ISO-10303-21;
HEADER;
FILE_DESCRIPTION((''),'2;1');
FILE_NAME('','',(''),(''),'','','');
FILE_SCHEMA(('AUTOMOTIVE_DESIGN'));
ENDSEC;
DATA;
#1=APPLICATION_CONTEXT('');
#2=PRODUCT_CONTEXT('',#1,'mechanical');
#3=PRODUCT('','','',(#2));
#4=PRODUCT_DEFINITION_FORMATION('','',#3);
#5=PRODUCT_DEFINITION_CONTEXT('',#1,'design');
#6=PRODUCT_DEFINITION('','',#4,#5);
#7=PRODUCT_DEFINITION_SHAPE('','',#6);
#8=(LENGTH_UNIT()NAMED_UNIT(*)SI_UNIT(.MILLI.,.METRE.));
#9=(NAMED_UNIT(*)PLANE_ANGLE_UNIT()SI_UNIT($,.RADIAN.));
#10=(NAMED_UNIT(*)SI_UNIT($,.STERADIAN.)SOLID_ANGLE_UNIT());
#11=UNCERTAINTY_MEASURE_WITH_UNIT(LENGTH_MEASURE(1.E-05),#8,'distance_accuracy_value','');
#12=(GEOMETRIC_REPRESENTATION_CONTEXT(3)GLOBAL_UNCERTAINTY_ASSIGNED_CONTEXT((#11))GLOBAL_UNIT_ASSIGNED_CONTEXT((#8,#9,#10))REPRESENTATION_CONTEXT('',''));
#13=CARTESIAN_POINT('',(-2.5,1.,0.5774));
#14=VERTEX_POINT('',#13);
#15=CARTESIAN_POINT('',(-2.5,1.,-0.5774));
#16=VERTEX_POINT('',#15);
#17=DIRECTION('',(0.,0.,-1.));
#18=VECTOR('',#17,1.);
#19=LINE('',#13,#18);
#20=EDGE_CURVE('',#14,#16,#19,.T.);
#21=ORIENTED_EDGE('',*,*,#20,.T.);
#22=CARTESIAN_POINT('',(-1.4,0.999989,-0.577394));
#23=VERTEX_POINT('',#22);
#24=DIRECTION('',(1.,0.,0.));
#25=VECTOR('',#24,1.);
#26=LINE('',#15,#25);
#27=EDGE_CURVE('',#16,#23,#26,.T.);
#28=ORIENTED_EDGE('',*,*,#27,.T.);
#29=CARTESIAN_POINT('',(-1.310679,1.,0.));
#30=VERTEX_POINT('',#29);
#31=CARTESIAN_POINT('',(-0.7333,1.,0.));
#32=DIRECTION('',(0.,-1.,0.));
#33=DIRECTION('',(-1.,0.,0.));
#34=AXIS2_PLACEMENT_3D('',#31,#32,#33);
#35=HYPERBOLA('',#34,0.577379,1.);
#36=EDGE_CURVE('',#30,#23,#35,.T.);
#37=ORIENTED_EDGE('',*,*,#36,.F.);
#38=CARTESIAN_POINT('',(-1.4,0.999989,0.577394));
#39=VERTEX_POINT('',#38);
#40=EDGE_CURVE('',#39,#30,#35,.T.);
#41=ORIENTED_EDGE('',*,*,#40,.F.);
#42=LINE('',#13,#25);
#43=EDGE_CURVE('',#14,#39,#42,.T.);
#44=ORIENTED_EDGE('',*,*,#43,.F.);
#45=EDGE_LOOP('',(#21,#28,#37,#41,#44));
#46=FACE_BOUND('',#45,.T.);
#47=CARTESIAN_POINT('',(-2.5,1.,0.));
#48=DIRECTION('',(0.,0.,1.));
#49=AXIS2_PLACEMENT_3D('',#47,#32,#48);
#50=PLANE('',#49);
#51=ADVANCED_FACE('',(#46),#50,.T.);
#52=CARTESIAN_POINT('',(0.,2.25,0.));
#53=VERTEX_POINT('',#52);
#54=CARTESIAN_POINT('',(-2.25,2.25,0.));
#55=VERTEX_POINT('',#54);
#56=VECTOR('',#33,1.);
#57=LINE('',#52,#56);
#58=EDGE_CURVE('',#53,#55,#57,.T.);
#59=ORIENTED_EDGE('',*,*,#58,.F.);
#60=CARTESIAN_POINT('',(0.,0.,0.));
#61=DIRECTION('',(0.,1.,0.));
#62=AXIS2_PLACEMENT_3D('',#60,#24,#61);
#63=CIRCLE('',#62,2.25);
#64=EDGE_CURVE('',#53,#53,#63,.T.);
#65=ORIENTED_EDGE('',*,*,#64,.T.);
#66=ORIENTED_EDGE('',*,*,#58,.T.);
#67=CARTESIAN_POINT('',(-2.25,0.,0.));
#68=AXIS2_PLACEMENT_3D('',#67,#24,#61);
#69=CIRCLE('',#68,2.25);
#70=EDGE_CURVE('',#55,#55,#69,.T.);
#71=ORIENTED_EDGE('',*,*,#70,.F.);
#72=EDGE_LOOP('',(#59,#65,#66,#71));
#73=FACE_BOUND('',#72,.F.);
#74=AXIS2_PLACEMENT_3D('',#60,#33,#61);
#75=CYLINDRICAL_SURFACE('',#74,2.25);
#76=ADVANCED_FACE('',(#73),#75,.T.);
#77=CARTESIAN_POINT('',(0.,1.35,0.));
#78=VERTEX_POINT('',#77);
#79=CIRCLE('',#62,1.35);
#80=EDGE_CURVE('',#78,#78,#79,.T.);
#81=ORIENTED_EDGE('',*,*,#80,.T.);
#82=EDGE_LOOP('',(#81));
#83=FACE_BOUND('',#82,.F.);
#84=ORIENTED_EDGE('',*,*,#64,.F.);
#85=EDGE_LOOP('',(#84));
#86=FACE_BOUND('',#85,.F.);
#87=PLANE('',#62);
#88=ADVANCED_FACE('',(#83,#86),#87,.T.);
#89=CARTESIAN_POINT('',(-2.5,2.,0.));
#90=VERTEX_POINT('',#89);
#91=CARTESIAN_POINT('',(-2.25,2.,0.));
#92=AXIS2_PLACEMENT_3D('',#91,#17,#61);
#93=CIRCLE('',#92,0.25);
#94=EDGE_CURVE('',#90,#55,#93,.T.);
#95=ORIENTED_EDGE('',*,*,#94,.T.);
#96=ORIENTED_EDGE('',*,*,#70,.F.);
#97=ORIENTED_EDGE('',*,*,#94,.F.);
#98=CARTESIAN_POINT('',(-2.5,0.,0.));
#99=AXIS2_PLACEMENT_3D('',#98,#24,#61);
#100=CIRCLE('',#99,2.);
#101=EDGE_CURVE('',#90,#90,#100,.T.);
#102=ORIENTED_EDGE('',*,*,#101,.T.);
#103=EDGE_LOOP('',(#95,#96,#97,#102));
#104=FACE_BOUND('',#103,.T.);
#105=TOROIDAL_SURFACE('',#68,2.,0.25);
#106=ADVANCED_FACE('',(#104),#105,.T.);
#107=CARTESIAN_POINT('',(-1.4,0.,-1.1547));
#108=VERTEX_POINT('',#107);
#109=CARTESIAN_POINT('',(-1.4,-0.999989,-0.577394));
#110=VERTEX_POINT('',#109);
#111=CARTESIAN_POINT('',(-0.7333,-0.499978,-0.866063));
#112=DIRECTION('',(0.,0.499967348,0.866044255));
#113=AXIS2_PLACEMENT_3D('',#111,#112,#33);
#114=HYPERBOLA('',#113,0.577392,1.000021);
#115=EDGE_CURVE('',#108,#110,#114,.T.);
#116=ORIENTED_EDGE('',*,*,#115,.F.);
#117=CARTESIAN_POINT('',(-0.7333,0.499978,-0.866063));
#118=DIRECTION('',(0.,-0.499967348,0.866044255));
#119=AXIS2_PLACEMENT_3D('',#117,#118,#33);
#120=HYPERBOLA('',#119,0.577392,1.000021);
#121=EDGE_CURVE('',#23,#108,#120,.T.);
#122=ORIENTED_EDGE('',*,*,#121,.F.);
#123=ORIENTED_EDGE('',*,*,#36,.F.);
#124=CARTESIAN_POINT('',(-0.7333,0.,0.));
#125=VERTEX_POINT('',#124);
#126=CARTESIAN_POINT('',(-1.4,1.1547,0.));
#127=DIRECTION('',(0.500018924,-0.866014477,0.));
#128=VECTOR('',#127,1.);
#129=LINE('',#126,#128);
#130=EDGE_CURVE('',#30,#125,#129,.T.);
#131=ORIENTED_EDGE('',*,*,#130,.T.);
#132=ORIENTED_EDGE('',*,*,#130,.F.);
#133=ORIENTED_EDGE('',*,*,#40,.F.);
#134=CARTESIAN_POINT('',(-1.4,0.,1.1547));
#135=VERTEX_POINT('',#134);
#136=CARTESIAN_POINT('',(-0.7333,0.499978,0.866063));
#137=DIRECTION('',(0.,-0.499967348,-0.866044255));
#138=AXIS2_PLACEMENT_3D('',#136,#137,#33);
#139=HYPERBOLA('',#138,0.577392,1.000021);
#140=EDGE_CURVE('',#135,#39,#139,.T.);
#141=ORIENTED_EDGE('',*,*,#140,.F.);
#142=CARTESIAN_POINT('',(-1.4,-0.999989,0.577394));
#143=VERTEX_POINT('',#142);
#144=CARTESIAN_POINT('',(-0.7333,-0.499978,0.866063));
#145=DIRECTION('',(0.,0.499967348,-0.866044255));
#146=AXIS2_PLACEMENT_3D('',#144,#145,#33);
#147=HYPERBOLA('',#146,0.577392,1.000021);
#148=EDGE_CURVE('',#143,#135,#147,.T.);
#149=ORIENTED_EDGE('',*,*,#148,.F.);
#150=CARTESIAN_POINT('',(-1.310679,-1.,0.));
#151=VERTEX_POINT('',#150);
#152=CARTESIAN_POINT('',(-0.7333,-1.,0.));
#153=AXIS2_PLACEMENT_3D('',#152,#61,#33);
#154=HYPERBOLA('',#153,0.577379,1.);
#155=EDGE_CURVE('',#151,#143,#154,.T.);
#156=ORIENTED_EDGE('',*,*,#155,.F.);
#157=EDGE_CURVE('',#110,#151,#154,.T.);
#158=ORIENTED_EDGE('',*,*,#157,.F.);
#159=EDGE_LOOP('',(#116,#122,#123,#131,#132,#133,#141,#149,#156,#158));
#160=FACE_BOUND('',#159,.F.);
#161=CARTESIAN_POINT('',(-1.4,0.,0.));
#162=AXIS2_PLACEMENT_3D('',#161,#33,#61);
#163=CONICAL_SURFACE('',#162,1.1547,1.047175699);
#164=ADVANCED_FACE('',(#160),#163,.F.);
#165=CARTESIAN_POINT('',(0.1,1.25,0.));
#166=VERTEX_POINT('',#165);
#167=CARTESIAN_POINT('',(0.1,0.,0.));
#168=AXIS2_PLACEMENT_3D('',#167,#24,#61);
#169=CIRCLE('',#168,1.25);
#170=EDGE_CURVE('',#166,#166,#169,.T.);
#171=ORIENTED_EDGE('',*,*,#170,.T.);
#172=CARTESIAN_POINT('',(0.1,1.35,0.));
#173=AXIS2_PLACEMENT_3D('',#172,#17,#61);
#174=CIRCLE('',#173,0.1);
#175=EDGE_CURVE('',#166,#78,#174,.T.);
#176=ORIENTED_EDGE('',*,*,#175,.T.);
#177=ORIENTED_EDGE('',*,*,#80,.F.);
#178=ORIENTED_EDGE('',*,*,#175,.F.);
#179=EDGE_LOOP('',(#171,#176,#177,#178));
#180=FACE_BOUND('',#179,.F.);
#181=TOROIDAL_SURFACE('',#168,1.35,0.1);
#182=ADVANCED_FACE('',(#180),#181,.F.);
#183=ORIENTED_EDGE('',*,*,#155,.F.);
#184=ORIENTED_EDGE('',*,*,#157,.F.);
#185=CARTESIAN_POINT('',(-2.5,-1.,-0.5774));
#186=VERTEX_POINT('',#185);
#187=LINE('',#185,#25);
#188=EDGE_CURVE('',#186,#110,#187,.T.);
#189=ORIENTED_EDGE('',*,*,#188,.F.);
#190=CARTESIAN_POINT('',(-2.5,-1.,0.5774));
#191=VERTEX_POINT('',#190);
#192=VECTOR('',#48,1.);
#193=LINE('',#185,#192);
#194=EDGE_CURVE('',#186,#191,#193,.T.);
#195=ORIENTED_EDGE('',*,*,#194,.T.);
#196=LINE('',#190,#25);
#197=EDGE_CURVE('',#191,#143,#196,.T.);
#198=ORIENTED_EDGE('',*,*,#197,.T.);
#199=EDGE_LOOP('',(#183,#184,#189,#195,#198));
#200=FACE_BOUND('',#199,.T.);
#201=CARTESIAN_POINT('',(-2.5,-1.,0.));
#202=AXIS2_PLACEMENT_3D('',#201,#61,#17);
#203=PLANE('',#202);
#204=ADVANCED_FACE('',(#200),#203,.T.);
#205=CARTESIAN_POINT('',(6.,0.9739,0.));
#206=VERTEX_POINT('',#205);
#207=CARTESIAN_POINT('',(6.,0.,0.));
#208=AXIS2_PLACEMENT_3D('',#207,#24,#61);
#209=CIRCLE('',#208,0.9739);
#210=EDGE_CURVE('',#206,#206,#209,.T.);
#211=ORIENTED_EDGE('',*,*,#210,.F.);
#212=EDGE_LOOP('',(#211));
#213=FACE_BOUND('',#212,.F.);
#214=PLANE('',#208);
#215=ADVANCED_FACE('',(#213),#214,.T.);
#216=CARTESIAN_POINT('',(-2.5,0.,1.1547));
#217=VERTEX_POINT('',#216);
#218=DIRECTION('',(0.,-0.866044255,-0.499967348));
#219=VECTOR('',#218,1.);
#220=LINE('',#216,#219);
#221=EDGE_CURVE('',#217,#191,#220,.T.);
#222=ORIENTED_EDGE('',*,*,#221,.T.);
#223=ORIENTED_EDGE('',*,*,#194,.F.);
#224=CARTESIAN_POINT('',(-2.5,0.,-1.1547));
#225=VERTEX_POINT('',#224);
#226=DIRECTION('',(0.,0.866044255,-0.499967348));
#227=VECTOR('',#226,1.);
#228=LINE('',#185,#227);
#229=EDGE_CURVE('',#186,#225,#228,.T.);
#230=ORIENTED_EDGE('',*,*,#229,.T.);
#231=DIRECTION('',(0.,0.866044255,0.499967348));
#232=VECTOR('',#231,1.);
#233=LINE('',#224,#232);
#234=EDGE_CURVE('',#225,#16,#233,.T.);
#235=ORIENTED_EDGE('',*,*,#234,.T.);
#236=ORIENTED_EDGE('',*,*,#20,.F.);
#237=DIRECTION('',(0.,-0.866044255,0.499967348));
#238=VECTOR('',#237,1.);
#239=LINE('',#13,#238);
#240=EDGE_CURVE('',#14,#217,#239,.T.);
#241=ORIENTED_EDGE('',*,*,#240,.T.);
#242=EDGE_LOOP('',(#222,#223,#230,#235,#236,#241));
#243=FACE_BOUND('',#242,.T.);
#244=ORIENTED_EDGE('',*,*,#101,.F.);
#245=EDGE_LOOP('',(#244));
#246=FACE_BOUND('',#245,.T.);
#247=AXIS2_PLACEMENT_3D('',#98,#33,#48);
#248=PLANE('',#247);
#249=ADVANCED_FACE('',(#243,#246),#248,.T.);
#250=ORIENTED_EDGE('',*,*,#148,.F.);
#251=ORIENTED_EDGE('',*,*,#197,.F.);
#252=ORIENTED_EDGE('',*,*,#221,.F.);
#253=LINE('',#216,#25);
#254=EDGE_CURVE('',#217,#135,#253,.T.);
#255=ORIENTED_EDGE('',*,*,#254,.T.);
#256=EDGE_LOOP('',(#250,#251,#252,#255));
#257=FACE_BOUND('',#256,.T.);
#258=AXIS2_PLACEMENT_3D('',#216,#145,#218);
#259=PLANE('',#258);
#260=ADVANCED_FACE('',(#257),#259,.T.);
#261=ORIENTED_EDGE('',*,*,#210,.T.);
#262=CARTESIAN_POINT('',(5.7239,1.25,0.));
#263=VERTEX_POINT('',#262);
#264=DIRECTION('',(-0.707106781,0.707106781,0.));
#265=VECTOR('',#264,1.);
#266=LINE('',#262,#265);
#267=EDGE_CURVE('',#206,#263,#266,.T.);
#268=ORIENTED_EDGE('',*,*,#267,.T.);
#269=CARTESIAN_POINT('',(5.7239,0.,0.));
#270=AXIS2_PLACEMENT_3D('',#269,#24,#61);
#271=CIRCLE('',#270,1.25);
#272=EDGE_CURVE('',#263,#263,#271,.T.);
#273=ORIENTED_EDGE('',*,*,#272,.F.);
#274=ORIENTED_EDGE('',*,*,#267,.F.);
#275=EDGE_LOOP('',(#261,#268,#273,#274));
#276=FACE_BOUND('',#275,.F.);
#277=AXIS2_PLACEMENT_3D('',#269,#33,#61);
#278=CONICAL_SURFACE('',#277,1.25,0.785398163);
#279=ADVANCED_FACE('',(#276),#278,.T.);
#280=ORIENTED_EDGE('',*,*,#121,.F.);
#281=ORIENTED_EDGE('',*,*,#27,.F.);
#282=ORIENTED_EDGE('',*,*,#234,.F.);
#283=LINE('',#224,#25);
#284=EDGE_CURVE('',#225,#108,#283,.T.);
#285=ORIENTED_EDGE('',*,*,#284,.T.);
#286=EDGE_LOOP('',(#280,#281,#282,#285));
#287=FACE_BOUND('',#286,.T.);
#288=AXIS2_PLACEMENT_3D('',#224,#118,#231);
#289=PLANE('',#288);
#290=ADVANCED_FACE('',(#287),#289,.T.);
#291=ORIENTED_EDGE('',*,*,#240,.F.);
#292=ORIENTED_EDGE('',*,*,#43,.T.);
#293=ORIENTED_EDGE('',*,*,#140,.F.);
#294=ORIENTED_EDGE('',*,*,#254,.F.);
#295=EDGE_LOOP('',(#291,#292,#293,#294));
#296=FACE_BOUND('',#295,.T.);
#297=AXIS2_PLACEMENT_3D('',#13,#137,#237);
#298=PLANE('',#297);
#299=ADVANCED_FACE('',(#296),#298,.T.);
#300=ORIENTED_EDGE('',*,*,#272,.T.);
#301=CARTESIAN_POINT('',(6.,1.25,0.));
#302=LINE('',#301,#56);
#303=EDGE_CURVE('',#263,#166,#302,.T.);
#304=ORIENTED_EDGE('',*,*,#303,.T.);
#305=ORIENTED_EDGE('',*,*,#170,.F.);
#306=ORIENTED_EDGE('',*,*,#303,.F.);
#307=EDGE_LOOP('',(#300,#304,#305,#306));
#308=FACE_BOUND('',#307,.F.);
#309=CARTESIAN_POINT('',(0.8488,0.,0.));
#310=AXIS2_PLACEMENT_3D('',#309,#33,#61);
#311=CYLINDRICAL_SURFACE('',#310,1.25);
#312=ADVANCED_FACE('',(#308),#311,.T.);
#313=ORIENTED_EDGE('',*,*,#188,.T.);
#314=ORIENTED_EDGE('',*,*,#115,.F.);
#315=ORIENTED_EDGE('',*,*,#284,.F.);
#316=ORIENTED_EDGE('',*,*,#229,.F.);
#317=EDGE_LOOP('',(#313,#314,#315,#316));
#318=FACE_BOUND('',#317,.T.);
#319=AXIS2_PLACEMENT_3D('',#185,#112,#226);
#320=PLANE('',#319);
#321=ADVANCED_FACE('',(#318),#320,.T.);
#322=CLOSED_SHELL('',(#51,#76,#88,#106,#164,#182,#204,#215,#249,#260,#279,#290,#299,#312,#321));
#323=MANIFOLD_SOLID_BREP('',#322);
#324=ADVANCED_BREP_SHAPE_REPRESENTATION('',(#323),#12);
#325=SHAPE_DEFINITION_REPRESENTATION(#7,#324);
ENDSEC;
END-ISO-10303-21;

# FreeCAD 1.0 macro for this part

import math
import FreeCAD as App
import Part
import Sketcher
from FreeCAD import Vector


def edges_at(feature, points):
    """Names of the edges that pass closest to the given points."""
    edges = feature.Shape.Edges
    near = lambda p: min(range(len(edges)), key=lambda i: edges[i].distToShape(Part.Vertex(*p))[0])
    return sorted({f"Edge{near(p) + 1}" for p in points})


def add_polygon(sketch, points):
    """Adds a closed chain of lines whose ends are joined by coincident constraints."""
    first, n = sketch.GeometryCount, len(points)
    for a, b in zip(points, points[1:] + points[:1]):
        sketch.addGeometry(Part.LineSegment(App.Vector(*a, 0), App.Vector(*b, 0)), False)
    for i in range(n):
        sketch.addConstraint(Sketcher.Constraint("Coincident", first + i, 2, first + (i + 1) % n, 1))

doc = App.newDocument("Part")
body = doc.addObject("PartDesign::Body", "Body")

sketch1 = body.newObject("Sketcher::SketchObject", "Sketch")
sketch1.AttachmentSupport = (doc.getObject("XY_Plane"), [""])
sketch1.MapMode = "FlatFace"
add_polygon(sketch1, [(-1.4, 1.1547), (-0.7333, 0), (6, 0), (6, 1.25), (0, 1.25), (0, 2.25), (-2.5, 2.25), (-2.5, 1.1547)])
sketch1.addConstraint([
    Sketcher.Constraint("Horizontal", 1),
    Sketcher.Constraint("Vertical", 2),
    Sketcher.Constraint("Horizontal", 3),
    Sketcher.Constraint("Vertical", 4),
    Sketcher.Constraint("Horizontal", 5),
    Sketcher.Constraint("Vertical", 6),
    Sketcher.Constraint("Horizontal", 7),
    Sketcher.Constraint("PointOnObject", 0, 2, -1),
    Sketcher.Constraint("PointOnObject", 3, 2, -2),
    Sketcher.Constraint("DistanceX", 3, 2, 3, 1, 6.0),
    Sketcher.Constraint("DistanceX", 5, 2, 5, 1, 2.5),
    Sketcher.Constraint("DistanceX", 7, 1, 7, 2, 1.1),
    Sketcher.Constraint("DistanceY", 4, 1, 4, 2, 1.0),
    Sketcher.Constraint("DistanceY", 2, 1, 2, 2, 1.25),
    Sketcher.Constraint("DistanceX", 1, 1, 1, 2, 6.7333),
    Sketcher.Constraint("DistanceY", 6, 2, 6, 1, 1.0953),
])
revolution = body.newObject("PartDesign::Revolution", "Revolution")
revolution.Profile = sketch1
revolution.ReferenceAxis = (sketch1, ["H_Axis"])
revolution.Angle = 360

sketch2 = body.newObject("Sketcher::SketchObject", "Sketch001")
sketch2.AttachmentSupport = (doc.getObject("YZ_Plane"), [""])
sketch2.MapMode = "FlatFace"
sketch2.AttachmentOffset = App.Placement(Vector(0, 0, -2.5), App.Rotation())
sketch2.addGeometry([
    Part.LineSegment(Vector(1, 0.5774, 0), Vector(0, 1.1547, 0)),
    Part.ArcOfCircle(Part.Circle(Vector(0, 0, 0), Vector(0, 0, 1), 1.1547), math.radians(30.002137), math.radians(90)),
    Part.ArcOfCircle(Part.Circle(Vector(0, 0, 0), Vector(0, 0, 1), 1.1547), math.radians(90), math.radians(149.997863)),
    Part.LineSegment(Vector(0, 1.1547, 0), Vector(-1, 0.5774, 0)),
    Part.ArcOfCircle(Part.Circle(Vector(0, 0, 0), Vector(0, 0, 1), 1.1547), math.radians(-30.002137), math.radians(30.002137)),
    Part.LineSegment(Vector(1, 0.5774, 0), Vector(1, -0.5774, 0)),
    Part.LineSegment(Vector(-1, 0.5774, 0), Vector(-1, -0.5774, 0)),
    Part.ArcOfCircle(Part.Circle(Vector(0, 0, 0), Vector(0, 0, 1), 1.1547), math.radians(149.997863), math.radians(210.002137)),
    Part.LineSegment(Vector(-1, -0.5774, 0), Vector(0, -1.1547, 0)),
    Part.ArcOfCircle(Part.Circle(Vector(0, 0, 0), Vector(0, 0, 1), 1.1547), math.radians(-149.997863), math.radians(-90)),
    Part.ArcOfCircle(Part.Circle(Vector(0, 0, 0), Vector(0, 0, 1), 1.1547), math.radians(-90), math.radians(-30.002137)),
    Part.LineSegment(Vector(0, -1.1547, 0), Vector(1, -0.5774, 0)),
], False)
sketch2.addConstraint([
    Sketcher.Constraint("Coincident", 0, 1, 1, 1),
    Sketcher.Constraint("Coincident", 1, 2, 0, 2),
    Sketcher.Constraint("Coincident", 2, 1, 3, 1),
    Sketcher.Constraint("Coincident", 3, 2, 2, 2),
    Sketcher.Constraint("Coincident", 4, 1, 5, 2),
    Sketcher.Constraint("Coincident", 5, 1, 4, 2),
    Sketcher.Constraint("Coincident", 6, 1, 7, 1),
    Sketcher.Constraint("Coincident", 7, 2, 6, 2),
    Sketcher.Constraint("Coincident", 8, 1, 9, 1),
    Sketcher.Constraint("Coincident", 9, 2, 8, 2),
    Sketcher.Constraint("Coincident", 10, 1, 11, 1),
    Sketcher.Constraint("Coincident", 11, 2, 10, 2),
    Sketcher.Constraint("Vertical", 5),
    Sketcher.Constraint("Vertical", 6),
    Sketcher.Constraint("Coincident", 1, 3, -1, 1),
    Sketcher.Constraint("Coincident", 2, 3, -1, 1),
    Sketcher.Constraint("Coincident", 4, 3, -1, 1),
    Sketcher.Constraint("Coincident", 7, 3, -1, 1),
    Sketcher.Constraint("Coincident", 9, 3, -1, 1),
    Sketcher.Constraint("Coincident", 10, 3, -1, 1),
    Sketcher.Constraint("Coincident", 2, 1, 1, 2),
    Sketcher.Constraint("Coincident", 5, 1, 0, 1),
    Sketcher.Constraint("Coincident", 6, 1, 3, 2),
    Sketcher.Constraint("Coincident", 8, 1, 7, 2),
    Sketcher.Constraint("Coincident", 10, 1, 9, 2),
    Sketcher.Constraint("PointOnObject", 1, 2, -2),
    Sketcher.Constraint("PointOnObject", 9, 2, -2),
    Sketcher.Constraint("Parallel", 0, 8),
    Sketcher.Constraint("Parallel", 3, 11),
    Sketcher.Constraint("DistanceX", -1, 1, 0, 1, 1.0),
    Sketcher.Constraint("Radius", 1, 1.1547),
])
pad1 = body.newObject("PartDesign::Pad", "Pad")
pad1.Profile = sketch2
pad1.Type = "UpToFirst"
doc.recompute()

fillet = body.newObject("PartDesign::Fillet", "Fillet")
fillet.Base = (pad1, edges_at(pad1, [(-2.5, -2.25, 0)]))
fillet.Radius = 0.25
doc.recompute()

chamfer = body.newObject("PartDesign::Chamfer", "Chamfer")
chamfer.Base = (fillet, edges_at(fillet, [(6, -1.25, 0)]))
chamfer.ChamferType = "Two distances"
chamfer.Size = 0.2761
chamfer.Size2 = 0.2761
doc.recompute()

fillet2 = body.newObject("PartDesign::Fillet", "Fillet001")
fillet2.Base = (chamfer, edges_at(chamfer, [(0, -1.25, 0)]))
fillet2.Radius = 0.1

doc.recompute()
